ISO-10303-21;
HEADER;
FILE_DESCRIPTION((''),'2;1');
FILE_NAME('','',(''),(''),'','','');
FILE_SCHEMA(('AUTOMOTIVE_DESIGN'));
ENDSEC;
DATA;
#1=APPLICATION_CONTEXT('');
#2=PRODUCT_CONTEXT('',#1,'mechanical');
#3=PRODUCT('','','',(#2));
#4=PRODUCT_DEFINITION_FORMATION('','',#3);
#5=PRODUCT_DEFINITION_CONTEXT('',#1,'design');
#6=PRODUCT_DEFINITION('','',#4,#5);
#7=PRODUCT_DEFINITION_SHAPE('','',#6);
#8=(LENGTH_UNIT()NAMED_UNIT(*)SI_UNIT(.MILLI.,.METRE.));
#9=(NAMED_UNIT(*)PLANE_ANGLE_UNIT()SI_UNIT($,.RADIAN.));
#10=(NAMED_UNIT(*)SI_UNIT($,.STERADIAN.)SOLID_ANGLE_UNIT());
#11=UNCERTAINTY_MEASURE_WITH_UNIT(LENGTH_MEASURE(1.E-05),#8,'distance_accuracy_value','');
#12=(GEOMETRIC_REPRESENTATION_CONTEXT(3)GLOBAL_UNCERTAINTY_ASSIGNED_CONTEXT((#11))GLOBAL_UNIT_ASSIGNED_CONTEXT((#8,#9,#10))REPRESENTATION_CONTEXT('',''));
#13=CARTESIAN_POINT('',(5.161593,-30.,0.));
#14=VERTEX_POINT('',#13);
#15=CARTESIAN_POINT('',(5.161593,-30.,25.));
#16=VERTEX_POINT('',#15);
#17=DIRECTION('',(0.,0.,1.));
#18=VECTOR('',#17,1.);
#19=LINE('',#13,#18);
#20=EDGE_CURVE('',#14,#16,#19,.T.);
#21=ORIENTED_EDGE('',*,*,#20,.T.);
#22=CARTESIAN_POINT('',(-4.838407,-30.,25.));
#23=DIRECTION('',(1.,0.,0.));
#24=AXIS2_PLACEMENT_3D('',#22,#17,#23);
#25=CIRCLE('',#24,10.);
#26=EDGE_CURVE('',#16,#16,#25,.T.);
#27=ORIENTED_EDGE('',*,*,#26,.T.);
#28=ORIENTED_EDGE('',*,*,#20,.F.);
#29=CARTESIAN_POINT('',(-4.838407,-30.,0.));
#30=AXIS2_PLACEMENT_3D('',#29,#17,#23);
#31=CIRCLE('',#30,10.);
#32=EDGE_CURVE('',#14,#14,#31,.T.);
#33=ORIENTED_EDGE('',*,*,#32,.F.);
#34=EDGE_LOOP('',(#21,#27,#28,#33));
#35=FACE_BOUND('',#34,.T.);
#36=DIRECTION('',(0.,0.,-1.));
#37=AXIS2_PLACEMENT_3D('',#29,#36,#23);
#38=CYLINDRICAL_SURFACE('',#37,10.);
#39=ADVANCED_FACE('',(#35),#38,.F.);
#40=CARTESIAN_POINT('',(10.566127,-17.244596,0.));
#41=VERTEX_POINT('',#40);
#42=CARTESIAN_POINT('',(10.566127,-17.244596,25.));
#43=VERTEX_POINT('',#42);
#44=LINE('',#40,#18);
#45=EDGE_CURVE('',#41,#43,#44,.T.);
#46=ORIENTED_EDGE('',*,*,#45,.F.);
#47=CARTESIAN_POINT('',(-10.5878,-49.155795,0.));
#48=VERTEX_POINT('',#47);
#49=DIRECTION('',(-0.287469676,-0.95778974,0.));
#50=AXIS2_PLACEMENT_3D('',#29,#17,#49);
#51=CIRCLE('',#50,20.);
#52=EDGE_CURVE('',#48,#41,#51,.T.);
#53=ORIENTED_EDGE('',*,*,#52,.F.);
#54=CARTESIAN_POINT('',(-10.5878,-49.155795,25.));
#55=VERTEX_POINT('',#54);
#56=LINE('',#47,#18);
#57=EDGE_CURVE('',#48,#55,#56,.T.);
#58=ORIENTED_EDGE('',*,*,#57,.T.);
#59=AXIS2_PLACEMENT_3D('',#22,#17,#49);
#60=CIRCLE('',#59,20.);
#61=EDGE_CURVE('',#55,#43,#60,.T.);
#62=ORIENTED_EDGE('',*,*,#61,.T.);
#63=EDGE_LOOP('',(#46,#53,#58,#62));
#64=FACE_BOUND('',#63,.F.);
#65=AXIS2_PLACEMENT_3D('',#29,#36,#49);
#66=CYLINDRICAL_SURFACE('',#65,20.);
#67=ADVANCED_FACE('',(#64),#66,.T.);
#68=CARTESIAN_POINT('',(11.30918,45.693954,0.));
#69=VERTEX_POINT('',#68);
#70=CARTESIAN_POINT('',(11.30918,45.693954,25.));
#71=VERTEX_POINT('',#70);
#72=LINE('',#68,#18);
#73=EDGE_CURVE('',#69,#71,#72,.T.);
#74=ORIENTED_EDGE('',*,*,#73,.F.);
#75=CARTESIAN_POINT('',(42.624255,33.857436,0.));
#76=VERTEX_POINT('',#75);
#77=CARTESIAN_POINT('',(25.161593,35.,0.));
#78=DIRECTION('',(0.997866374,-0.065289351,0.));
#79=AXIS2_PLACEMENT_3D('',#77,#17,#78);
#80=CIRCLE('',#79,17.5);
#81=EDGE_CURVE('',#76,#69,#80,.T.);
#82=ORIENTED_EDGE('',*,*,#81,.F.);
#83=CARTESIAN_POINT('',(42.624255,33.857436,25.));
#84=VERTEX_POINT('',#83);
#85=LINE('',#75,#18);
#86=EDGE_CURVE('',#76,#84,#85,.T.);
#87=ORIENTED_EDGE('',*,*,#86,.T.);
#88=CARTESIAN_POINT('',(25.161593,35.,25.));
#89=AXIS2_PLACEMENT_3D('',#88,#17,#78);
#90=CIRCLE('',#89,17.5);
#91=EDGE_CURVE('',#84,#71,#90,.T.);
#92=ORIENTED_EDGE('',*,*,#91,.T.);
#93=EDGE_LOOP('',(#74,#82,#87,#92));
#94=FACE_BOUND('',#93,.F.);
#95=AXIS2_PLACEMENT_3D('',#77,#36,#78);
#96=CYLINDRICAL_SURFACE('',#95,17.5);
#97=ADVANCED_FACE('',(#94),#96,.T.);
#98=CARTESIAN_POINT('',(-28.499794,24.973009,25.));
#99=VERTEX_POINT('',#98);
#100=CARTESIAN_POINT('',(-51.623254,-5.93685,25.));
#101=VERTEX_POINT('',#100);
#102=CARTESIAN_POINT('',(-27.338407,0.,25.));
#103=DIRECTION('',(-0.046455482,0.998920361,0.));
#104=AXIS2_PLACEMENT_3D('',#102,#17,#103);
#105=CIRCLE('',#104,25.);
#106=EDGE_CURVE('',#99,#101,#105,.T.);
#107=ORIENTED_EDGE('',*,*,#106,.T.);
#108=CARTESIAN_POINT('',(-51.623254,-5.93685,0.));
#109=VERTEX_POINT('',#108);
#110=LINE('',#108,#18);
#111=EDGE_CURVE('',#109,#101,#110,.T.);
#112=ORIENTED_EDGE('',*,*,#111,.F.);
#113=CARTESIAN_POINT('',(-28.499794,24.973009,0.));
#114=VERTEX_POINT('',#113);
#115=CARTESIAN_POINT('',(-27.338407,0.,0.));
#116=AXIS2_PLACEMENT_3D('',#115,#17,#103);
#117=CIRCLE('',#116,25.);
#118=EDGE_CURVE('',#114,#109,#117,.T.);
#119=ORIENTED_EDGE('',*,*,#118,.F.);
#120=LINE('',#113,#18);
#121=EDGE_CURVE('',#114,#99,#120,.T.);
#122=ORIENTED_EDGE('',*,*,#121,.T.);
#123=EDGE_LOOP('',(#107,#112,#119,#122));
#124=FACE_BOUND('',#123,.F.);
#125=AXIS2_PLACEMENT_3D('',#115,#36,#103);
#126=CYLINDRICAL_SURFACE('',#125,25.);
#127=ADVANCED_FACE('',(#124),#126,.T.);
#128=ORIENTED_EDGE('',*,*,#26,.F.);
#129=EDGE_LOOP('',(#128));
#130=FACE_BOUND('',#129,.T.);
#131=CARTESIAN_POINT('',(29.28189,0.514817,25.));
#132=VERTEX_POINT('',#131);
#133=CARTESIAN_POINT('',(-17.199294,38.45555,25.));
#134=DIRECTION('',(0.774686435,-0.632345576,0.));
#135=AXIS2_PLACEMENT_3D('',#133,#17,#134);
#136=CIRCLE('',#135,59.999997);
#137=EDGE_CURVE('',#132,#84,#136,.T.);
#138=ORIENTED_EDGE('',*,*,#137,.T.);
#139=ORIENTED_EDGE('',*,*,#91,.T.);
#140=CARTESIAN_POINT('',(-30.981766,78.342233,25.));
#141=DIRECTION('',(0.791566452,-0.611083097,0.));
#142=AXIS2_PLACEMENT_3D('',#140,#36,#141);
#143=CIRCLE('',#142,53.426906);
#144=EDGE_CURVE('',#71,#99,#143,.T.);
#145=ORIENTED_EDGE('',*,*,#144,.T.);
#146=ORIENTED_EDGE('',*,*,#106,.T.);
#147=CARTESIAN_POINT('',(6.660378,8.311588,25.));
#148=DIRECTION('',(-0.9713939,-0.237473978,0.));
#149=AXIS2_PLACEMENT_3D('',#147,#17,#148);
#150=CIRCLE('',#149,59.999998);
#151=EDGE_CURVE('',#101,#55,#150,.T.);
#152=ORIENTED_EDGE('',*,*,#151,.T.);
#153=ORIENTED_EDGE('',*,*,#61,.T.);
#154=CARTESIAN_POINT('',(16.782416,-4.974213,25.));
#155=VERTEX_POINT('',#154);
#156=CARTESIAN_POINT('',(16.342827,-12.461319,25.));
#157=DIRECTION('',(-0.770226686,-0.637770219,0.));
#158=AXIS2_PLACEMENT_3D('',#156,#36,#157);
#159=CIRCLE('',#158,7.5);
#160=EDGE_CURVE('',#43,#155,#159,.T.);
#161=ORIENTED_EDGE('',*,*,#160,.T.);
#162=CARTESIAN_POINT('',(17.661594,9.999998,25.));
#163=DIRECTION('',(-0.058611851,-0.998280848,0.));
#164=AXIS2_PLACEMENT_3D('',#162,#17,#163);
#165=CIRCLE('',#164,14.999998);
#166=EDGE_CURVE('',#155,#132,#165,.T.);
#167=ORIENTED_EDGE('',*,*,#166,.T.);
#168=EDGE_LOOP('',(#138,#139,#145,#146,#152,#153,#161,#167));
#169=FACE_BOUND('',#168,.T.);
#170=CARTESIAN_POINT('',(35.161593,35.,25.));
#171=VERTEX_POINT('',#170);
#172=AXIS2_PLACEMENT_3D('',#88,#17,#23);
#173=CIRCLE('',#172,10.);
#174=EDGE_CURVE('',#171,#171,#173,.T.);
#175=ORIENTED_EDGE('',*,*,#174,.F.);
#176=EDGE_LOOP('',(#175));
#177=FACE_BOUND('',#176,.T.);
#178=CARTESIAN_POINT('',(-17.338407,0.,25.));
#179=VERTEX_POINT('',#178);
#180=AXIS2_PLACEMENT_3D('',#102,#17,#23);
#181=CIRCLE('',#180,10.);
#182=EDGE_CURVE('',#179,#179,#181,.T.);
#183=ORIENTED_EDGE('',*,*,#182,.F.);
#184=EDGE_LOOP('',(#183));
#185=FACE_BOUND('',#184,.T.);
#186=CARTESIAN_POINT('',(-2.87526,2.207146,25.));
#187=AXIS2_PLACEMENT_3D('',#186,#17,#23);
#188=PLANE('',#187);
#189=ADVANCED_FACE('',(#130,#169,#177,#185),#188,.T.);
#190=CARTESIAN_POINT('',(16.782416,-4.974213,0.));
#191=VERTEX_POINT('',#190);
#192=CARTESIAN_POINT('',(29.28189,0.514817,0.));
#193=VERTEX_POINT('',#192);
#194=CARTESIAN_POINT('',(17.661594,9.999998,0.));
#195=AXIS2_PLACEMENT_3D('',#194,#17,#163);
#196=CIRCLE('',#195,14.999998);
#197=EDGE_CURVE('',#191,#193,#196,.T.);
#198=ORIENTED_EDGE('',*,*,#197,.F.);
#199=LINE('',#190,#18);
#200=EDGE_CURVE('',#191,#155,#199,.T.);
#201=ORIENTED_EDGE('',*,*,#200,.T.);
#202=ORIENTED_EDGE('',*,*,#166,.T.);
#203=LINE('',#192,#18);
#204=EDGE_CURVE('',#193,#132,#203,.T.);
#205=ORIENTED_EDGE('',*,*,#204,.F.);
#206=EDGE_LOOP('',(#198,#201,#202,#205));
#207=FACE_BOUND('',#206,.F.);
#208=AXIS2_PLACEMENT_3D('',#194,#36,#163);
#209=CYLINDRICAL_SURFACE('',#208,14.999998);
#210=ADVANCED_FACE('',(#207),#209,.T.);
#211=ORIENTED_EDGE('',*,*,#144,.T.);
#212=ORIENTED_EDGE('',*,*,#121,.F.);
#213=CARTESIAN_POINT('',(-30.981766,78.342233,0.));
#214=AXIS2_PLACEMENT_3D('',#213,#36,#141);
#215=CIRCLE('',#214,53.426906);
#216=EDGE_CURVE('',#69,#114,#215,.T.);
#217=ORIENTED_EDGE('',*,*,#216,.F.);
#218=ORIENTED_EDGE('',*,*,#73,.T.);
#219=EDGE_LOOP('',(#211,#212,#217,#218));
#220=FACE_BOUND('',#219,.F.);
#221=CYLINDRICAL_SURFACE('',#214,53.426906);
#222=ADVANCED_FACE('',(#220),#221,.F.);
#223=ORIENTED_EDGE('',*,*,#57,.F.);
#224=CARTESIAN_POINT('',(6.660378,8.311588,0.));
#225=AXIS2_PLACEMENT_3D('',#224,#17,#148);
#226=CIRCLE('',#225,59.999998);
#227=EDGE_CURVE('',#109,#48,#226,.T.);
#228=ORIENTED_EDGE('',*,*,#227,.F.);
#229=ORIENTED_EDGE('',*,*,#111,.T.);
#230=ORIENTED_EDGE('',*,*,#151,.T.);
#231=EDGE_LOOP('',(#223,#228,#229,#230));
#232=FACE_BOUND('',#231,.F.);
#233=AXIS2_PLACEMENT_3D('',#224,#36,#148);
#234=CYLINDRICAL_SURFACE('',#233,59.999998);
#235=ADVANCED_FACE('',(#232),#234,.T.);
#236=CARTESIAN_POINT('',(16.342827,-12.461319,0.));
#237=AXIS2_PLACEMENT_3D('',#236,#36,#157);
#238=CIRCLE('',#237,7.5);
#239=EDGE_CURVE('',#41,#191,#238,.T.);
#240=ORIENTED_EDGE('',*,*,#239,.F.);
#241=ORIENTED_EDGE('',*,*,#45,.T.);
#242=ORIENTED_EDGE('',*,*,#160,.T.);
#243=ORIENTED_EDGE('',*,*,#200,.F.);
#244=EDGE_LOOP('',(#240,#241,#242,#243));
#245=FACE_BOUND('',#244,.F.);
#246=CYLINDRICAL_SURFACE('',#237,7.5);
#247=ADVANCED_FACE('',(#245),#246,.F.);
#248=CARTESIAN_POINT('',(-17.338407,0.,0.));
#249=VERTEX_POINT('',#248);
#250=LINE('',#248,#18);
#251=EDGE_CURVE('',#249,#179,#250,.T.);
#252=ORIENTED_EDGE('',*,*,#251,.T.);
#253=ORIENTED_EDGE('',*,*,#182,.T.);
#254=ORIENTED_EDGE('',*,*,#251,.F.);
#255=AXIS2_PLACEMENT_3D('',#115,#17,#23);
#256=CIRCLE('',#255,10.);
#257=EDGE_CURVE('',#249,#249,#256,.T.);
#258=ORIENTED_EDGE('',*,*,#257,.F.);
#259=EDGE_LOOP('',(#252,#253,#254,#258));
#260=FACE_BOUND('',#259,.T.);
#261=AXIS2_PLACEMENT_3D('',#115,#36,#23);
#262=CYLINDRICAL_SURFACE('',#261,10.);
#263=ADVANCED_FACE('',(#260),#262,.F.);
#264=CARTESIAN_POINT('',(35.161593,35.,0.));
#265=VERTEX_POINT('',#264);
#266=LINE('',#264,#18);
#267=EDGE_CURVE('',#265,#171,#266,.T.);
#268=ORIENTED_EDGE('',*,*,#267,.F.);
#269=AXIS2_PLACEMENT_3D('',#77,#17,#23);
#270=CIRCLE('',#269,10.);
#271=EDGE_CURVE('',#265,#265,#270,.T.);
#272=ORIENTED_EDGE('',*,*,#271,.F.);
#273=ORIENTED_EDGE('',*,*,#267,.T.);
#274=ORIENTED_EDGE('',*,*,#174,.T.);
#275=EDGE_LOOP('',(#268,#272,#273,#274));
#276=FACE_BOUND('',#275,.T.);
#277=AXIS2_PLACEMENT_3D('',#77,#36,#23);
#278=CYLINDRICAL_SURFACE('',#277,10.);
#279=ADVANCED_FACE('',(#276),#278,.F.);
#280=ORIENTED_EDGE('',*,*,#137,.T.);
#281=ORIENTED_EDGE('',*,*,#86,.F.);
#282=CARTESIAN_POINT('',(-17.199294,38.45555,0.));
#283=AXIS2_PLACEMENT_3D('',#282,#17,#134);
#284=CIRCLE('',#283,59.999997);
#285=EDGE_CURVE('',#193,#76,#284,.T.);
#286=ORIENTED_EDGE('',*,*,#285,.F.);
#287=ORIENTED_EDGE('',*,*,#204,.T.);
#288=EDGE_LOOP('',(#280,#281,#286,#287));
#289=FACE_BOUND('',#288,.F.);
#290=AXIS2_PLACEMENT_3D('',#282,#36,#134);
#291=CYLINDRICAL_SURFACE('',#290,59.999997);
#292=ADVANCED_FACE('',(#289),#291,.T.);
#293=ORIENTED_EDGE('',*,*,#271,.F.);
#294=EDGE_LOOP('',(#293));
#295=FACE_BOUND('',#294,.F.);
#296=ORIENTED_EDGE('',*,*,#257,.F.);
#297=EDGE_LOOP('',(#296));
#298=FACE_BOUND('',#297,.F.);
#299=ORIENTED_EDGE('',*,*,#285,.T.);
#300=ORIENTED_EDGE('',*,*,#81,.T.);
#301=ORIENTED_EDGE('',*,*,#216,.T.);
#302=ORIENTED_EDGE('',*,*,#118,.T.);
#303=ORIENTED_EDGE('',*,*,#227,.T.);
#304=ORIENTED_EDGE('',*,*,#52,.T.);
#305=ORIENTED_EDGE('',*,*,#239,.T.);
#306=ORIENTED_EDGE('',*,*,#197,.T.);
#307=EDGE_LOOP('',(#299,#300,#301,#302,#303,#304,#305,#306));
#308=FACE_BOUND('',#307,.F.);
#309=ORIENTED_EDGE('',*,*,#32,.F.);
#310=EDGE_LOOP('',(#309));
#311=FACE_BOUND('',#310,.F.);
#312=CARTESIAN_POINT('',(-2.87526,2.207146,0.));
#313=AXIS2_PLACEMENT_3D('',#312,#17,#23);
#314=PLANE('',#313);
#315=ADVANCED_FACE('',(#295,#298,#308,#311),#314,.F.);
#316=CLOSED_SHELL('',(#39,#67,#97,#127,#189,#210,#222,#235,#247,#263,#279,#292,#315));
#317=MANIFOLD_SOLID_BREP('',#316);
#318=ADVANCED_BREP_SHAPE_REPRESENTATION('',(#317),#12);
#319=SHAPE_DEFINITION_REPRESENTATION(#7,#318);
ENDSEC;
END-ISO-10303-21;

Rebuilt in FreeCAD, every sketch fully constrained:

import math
import FreeCAD as App
import Part
import Sketcher
Q = App.Units.Quantity

doc = App.newDocument("Part")
body = doc.addObject("PartDesign::Body", "Body")

# Sketch on XY plane
sketch1 = body.newObject("Sketcher::SketchObject", "Sketch")
sketch1.AttachmentSupport = (doc.getObject("XY_Plane"), [""])
sketch1.MapMode = "FlatFace"
sketch1.addGeometry(Part.ArcOfCircle(Part.Circle(App.Vector(-4.838407, -30, 0), App.Vector(0, 0, 1), 20), math.radians(-106.70653), math.radians(39.625751)), False)
sketch1.addGeometry(Part.ArcOfCircle(Part.Circle(App.Vector(16.342827, -12.461319, 0), App.Vector(0, 0, 1), 7.5), math.radians(86.639863), math.radians(219.625751)), False)
sketch1.addGeometry(Part.ArcOfCircle(Part.Circle(App.Vector(17.661594, 9.999998, 0), App.Vector(0, 0, 1), 14.999998), math.radians(-93.360137), math.radians(-39.22338)), False)
sketch1.addGeometry(Part.ArcOfCircle(Part.Circle(App.Vector(-17.199294, 38.45555, 0), App.Vector(0, 0, 1), 59.999997), math.radians(-39.223388), math.radians(-4.395185)), False)
sketch1.addGeometry(Part.ArcOfCircle(Part.Circle(App.Vector(25.161593, 35, 0), App.Vector(0, 0, 1), 17.5), math.radians(-3.743467), math.radians(142.332141)), False)
sketch1.addGeometry(Part.ArcOfCircle(Part.Circle(App.Vector(-30.981766, 78.342233, 0), App.Vector(0, 0, 1), 53.426906), math.radians(-87.337339), math.radians(-37.667859)), False)
sketch1.addGeometry(Part.ArcOfCircle(Part.Circle(App.Vector(-27.338407, 0, 0), App.Vector(0, 0, 1), 25), math.radians(92.662661), math.radians(193.737502)), False)
sketch1.addGeometry(Part.ArcOfCircle(Part.Circle(App.Vector(6.660378, 8.311588, 0), App.Vector(0, 0, 1), 59.999998), math.radians(-166.2625), math.radians(-106.706528)), False)
sketch1.addGeometry(Part.Circle(App.Vector(-4.838407, -30, 0), App.Vector(0, 0, 1), 10), False)
sketch1.addGeometry(Part.Circle(App.Vector(-27.338407, 0, 0), App.Vector(0, 0, 1), 10), False)
sketch1.addGeometry(Part.Circle(App.Vector(25.161593, 35, 0), App.Vector(0, 0, 1), 10), False)
sketch1.addConstraint(Sketcher.Constraint("Coincident", 0, 2, 1, 2))
sketch1.addConstraint(Sketcher.Constraint("Coincident", 1, 1, 2, 1))
sketch1.addConstraint(Sketcher.Constraint("Coincident", 2, 2, 3, 1))
sketch1.addConstraint(Sketcher.Constraint("Coincident", 3, 2, 4, 1))
sketch1.addConstraint(Sketcher.Constraint("Coincident", 4, 2, 5, 2))
sketch1.addConstraint(Sketcher.Constraint("Coincident", 5, 1, 6, 1))
sketch1.addConstraint(Sketcher.Constraint("Coincident", 6, 2, 7, 1))
sketch1.addConstraint(Sketcher.Constraint("Coincident", 7, 2, 0, 1))
sketch1.addConstraint(Sketcher.Constraint("Coincident", 8, 3, 0, 3))
sketch1.addConstraint(Sketcher.Constraint("Coincident", 9, 3, 6, 3))
sketch1.addConstraint(Sketcher.Constraint("Coincident", 10, 3, 4, 3))
sketch1.addConstraint(Sketcher.Constraint("PointOnObject", 6, 3, -1))
sketch1.addConstraint(Sketcher.Constraint("Diameter", 8, Q("20 mm")))
sketch1.addConstraint(Sketcher.Constraint("Diameter", 9, Q("20 mm")))
sketch1.addConstraint(Sketcher.Constraint("Diameter", 10, Q("20 mm")))
sketch1.addConstraint(Sketcher.Constraint("Radius", 0, Q("20 mm")))
sketch1.addConstraint(Sketcher.Constraint("Radius", 2, Q("14.999998 mm")))
sketch1.addConstraint(Sketcher.Constraint("Radius", 6, Q("25 mm")))
sketch1.addConstraint(Sketcher.Constraint("Radius", 7, Q("59.999998 mm")))
sketch1.addConstraint(Sketcher.Constraint("Radius", 1, Q("7.5 mm")))
sketch1.addConstraint(Sketcher.Constraint("Radius", 4, Q("17.5 mm")))
sketch1.addConstraint(Sketcher.Constraint("DistanceY", 0, 3, -1, 1, Q("30 mm")))
sketch1.addConstraint(Sketcher.Constraint("DistanceY", -1, 1, 4, 3, Q("35 mm")))
sketch1.addConstraint(Sketcher.Constraint("DistanceY", 0, 3, 2, 3, Q("39.999998 mm")))
sketch1.addConstraint(Sketcher.Constraint("DistanceX", 0, 3, 4, 3, Q("30 mm")))
sketch1.addConstraint(Sketcher.Constraint("DistanceX", 6, 3, 2, 3, Q("45.000001 mm")))
sketch1.addConstraint(Sketcher.Constraint("DistanceX", 0, 3, 2, 3, Q("22.5 mm")))
sketch1.addConstraint(Sketcher.Constraint("Radius", 3, Q("59.999997 mm")))
sketch1.addConstraint(Sketcher.Constraint("Radius", 5, Q("53.426906 mm")))
sketch1.addConstraint(Sketcher.Constraint("DistanceX", 7, 2, -1, 1, Q("10.5878 mm")))
sketch1.addConstraint(Sketcher.Constraint("DistanceX", 0, 2, 1, 3, Q("5.7767 mm")))
sketch1.addConstraint(Sketcher.Constraint("DistanceY", 1, 1, 7, 3, Q("13.285801 mm")))
sketch1.addConstraint(Sketcher.Constraint("DistanceX", 5, 1, 3, 3, Q("11.3005 mm")))
sketch1.addConstraint(Sketcher.Constraint("DistanceY", 7, 2, 0, 2, Q("31.911199 mm")))
sketch1.addConstraint(Sketcher.Constraint("DistanceY", -1, 1, 3, 3, Q("38.45555 mm")))
sketch1.addConstraint(Sketcher.Constraint("DistanceX", -1, 1, 2, 2, Q("29.28189 mm")))
sketch1.addConstraint(Sketcher.Constraint("DistanceX", -1, 1, 4, 2, Q("11.30918 mm")))
sketch1.addConstraint(Sketcher.Constraint("DistanceY", 6, 2, -1, 1, Q("5.93685 mm")))
pad1 = body.newObject("PartDesign::Pad", "Pad")
pad1.Profile = sketch1
pad1.Length = 25

doc.recompute()
